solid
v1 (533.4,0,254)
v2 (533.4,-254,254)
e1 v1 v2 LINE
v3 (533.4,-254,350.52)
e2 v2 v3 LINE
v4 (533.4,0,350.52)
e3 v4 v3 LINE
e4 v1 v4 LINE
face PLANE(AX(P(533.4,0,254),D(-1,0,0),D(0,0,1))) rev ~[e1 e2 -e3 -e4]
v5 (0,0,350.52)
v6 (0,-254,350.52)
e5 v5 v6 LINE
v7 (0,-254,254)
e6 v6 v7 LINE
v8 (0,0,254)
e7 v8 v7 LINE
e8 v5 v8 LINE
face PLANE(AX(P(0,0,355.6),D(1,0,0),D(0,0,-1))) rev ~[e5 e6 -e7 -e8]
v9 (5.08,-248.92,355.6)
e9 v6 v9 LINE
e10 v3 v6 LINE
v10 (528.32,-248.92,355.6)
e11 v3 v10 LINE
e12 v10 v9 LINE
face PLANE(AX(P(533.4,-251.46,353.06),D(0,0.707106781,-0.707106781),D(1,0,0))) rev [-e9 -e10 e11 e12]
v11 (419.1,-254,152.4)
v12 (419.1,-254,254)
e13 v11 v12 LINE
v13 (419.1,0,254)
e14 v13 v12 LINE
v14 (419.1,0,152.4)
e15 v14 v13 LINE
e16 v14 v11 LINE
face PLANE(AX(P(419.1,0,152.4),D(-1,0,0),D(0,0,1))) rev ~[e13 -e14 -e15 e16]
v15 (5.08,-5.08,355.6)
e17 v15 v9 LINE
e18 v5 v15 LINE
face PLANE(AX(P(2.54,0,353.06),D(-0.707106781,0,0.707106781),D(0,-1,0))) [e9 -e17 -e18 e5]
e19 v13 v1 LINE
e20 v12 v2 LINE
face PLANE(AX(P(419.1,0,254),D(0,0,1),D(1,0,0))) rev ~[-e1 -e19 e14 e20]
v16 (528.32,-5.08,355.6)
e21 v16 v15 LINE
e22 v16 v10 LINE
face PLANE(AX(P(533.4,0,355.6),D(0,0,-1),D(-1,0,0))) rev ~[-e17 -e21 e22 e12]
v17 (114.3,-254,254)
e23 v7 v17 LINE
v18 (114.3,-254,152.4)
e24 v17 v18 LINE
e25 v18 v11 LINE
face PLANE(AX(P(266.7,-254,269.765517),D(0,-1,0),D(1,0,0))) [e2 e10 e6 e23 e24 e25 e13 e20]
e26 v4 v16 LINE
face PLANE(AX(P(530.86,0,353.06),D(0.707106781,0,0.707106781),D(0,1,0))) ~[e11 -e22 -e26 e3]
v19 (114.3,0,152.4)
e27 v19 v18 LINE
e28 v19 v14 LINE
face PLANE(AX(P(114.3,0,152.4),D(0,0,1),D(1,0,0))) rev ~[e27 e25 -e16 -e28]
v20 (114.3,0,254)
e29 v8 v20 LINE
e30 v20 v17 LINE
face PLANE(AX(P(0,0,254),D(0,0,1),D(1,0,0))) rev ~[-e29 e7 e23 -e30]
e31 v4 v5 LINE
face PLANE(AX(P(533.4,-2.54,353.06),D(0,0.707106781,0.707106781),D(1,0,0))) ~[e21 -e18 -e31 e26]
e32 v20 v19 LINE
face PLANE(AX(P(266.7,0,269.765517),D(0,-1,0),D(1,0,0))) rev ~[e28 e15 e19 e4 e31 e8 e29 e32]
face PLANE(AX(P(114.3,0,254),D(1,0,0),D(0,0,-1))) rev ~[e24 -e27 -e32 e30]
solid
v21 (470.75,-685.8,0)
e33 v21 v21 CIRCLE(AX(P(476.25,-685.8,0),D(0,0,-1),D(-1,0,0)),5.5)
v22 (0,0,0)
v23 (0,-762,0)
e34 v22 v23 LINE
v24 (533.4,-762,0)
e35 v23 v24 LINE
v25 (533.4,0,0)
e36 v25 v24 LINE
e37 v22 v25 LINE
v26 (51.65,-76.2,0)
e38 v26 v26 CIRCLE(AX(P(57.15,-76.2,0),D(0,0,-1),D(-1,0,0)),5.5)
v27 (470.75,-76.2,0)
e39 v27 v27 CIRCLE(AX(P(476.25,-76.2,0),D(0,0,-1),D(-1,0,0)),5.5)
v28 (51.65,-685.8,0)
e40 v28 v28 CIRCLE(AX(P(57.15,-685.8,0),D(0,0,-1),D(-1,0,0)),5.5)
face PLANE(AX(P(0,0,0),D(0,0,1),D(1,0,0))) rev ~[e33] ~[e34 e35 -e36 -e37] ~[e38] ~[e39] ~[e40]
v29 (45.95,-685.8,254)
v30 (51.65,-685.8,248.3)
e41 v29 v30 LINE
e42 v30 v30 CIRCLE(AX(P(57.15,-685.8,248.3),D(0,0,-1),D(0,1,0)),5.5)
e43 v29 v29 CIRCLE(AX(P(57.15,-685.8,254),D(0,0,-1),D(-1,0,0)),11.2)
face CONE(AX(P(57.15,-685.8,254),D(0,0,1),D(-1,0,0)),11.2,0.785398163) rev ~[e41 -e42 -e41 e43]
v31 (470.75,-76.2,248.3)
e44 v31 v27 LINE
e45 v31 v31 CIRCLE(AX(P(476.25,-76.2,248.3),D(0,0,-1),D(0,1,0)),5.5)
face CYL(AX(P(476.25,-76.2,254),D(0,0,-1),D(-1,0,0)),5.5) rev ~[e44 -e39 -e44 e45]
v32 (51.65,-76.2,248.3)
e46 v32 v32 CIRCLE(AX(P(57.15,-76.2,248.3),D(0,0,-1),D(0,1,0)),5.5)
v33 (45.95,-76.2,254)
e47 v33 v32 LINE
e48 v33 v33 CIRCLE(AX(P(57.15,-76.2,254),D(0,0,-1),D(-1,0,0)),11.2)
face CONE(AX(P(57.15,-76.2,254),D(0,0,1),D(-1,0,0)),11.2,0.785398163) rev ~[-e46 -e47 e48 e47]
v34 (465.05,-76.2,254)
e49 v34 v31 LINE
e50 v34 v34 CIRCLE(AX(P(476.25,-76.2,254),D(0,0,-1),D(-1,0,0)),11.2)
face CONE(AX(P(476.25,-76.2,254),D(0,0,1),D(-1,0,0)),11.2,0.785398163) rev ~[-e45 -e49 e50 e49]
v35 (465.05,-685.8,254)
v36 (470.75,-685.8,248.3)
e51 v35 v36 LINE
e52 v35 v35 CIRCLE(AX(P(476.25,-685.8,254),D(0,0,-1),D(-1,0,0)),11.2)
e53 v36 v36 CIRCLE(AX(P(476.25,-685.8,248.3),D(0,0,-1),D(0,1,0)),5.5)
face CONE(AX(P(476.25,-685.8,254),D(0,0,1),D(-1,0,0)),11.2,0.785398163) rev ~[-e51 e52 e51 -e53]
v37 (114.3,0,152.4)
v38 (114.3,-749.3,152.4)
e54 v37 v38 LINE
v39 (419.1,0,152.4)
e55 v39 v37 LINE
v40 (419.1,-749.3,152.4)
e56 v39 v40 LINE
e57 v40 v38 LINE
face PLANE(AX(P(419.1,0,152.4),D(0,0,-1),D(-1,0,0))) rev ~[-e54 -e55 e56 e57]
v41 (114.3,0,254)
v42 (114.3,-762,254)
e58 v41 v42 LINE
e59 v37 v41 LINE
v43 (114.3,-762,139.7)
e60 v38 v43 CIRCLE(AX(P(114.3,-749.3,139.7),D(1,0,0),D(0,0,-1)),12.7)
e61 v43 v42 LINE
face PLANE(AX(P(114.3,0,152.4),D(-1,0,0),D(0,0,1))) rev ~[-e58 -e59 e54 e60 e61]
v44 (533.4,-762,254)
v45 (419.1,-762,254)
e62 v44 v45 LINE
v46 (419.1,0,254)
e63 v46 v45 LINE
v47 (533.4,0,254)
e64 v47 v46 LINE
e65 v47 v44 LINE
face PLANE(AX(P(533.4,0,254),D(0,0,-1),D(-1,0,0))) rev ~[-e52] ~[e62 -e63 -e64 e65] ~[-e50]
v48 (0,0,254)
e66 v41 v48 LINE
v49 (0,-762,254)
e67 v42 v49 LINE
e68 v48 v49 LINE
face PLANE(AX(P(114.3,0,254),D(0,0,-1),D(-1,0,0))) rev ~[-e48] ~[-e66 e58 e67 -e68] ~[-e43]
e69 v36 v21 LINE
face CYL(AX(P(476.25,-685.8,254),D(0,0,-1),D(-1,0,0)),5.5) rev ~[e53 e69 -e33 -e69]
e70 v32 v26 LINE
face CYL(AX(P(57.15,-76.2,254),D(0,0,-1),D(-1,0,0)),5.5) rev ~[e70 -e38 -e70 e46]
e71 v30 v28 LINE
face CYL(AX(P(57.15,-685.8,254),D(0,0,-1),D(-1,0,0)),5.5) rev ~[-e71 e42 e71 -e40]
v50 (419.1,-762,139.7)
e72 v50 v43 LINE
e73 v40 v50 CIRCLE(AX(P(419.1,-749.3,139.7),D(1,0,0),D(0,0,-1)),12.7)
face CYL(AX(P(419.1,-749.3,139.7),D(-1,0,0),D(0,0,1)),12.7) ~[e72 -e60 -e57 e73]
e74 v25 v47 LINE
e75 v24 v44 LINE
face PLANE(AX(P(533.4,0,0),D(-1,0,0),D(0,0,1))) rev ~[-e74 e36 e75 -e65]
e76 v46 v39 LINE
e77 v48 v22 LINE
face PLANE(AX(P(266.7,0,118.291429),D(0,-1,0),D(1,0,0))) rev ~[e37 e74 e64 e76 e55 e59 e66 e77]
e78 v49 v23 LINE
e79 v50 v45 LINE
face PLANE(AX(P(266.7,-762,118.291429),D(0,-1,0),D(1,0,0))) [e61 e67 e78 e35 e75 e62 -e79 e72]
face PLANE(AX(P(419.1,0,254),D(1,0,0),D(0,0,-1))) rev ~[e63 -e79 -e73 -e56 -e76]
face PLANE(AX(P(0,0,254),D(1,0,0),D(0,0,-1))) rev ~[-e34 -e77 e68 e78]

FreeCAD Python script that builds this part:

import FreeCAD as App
import Part
import Sketcher
Q = App.Units.Quantity


def edges_at(feature, points):
    """Names of the edges that pass closest to the given points."""
    edges = feature.Shape.Edges
    near = lambda p: min(range(len(edges)), key=lambda i: edges[i].distToShape(Part.Vertex(*p))[0])
    return sorted({f"Edge{near(p) + 1}" for p in points})


def add_polygon(sketch, points):
    """Adds a closed chain of lines whose ends are joined by coincident constraints."""
    first, n = sketch.GeometryCount, len(points)
    for a, b in zip(points, points[1:] + points[:1]):
        sketch.addGeometry(Part.LineSegment(App.Vector(*a, 0), App.Vector(*b, 0)), False)
    for i in range(n):
        sketch.addConstraint(Sketcher.Constraint("Coincident", first + i, 2, first + (i + 1) % n, 1))

doc = App.newDocument("Part")
params = doc.addObject("Spreadsheet::Sheet", "Params")
for row, (alias, value) in enumerate([
    ("sketch1_width", "21 in"),
    ("sketch1_width2", "12 in"),
    ("sketch1_height", "10 in"),
    ("sketch1_height2", "4 in"),
    ("pad1_length", "30 in"),
    ("hole_diameter", "11 mm"),
    ("hole_csink_diameter", "22.4 mm"),
    ("fillet_radius", "0.5 in"),
    ("sketch3_width", "12 in"),
    ("sketch3_width2", "21 in"),
    ("sketch3_height", "4 in"),
    ("pad2_length", "10 in"),
    ("chamfer_size", "0.2 in"),
], start=1):
    params.set(f"A{row}", alias)
    params.set(f"B{row}", "=" + value)
    params.setAlias(f"B{row}", alias)

body = doc.addObject("PartDesign::Body", "Body")

# Sketch on XZ plane
sketch1 = doc.addObject("Sketcher::SketchObject", "Sketch")
body.addObject(sketch1)
sketch1.AttachmentSupport = (doc.XZ_Plane, [""])
sketch1.MapMode = "FlatFace"
add_polygon(sketch1, [(114, 254), (0, 254), (0, 0), (533, 0), (533, 254), (419, 254), (419, 152), (114, 152)])  # lines 0-7
sketch1.addConstraint([
    Sketcher.Constraint("Horizontal", 0),
    Sketcher.Constraint("Vertical", 1),
    Sketcher.Constraint("Horizontal", 2),
    Sketcher.Constraint("Vertical", 3),
    Sketcher.Constraint("Horizontal", 4),
    Sketcher.Constraint("Vertical", 5),
    Sketcher.Constraint("Horizontal", 6),
    Sketcher.Constraint("Vertical", 7),
    Sketcher.Constraint("Coincident", 1, 2, -1, 1),
    Sketcher.Constraint("Horizontal", 0, 2, 3, 2),
    Sketcher.Constraint("Equal", 0, 4),
    Sketcher.Constraint("DistanceX", 2, 1, 2, 2, Q("21 in")),
    Sketcher.Constraint("DistanceX", 6, 2, 6, 1, Q("12 in")),
    Sketcher.Constraint("DistanceY", 1, 2, 1, 1, Q("10 in")),
    Sketcher.Constraint("DistanceY", 5, 2, 5, 1, Q("4 in")),
])
sketch1.setExpression("Constraints[19]", "Params.sketch1_width")
sketch1.setExpression("Constraints[20]", "Params.sketch1_width2")
sketch1.setExpression("Constraints[21]", "Params.sketch1_height")
sketch1.setExpression("Constraints[22]", "Params.sketch1_height2")
pad1 = doc.addObject("PartDesign::Pad", "Pad")
body.addObject(pad1)
pad1.Profile = sketch1
pad1.setExpression("Length", "Params.pad1_length")

# Sketch on XY plane
sketch2 = doc.addObject("Sketcher::SketchObject", "Sketch001")
body.addObject(sketch2)
sketch2.AttachmentSupport = (doc.XY_Plane, [""])
sketch2.MapMode = "FlatFace"
sketch2.AttachmentOffset = App.Placement(App.Vector(0, 0, 10 * 25.4), App.Rotation())
sketch2.addGeometry([
    Part.Circle(App.Vector(57, -76, 0), App.Vector(0, 0, 1), 6),
    Part.Circle(App.Vector(476, -76, 0), App.Vector(0, 0, 1), 6),
    Part.Circle(App.Vector(476, -686, 0), App.Vector(0, 0, 1), 6),
    Part.Circle(App.Vector(57, -686, 0), App.Vector(0, 0, 1), 6),
], False)
sketch2.addConstraint([
    Sketcher.Constraint("Equal", 0, 1),
    Sketcher.Constraint("Equal", 1, 2),
    Sketcher.Constraint("Equal", 2, 3),
    Sketcher.Constraint("Horizontal", 0, 3, 1, 3),
    Sketcher.Constraint("Horizontal", 2, 3, 3, 3),
    Sketcher.Constraint("Vertical", 1, 3, 2, 3),
    Sketcher.Constraint("Vertical", 0, 3, 3, 3),
    Sketcher.Constraint("DistanceY", 0, 3, -1, 1, Q("3 in")),
    Sketcher.Constraint("DistanceY", 2, 3, -1, 1, Q("27 in")),
    Sketcher.Constraint("DistanceX", 0, 3, 1, 3, Q("16.5 in")),
    Sketcher.Constraint("Diameter", 0, 11.0),
    Sketcher.Constraint("DistanceX", -1, 1, 0, 3, Q("2.25 in")),
])
doc.recompute()
hole = doc.addObject("PartDesign::Hole", "Hole")
body.addObject(hole)
hole.Profile = sketch2
hole.ThreadType = "None"
hole.setExpression("Diameter", "Params.hole_diameter")
hole.DepthType = "ThroughAll"
hole.HoleCutType = "Countersink"
hole.setExpression("HoleCutDiameter", "Params.hole_csink_diameter")
hole.HoleCutCountersinkAngle = 90
doc.recompute()

fillet = doc.addObject("PartDesign::Fillet", "Fillet")
body.addObject(fillet)
fillet.Base = (hole, edges_at(hole, [(266.7, -762, 152.4)]))
fillet.setExpression("Radius", "Params.fillet_radius")
body2 = doc.addObject("PartDesign::Body", "Body001")

# Sketch on XZ plane
sketch3 = doc.addObject("Sketcher::SketchObject", "Sketch002")
body2.addObject(sketch3)
sketch3.AttachmentSupport = (doc.getObject("XZ_Plane001"), [""])
sketch3.MapMode = "FlatFace"
add_polygon(sketch3, [(0, 356), (0, 254), (114, 254), (114, 152), (419, 152), (419, 254), (533, 254), (533, 356)])  # lines 0-7
sketch3.addConstraint([
    Sketcher.Constraint("Vertical", 0),
    Sketcher.Constraint("Horizontal", 1),
    Sketcher.Constraint("Vertical", 2),
    Sketcher.Constraint("Horizontal", 3),
    Sketcher.Constraint("Vertical", 4),
    Sketcher.Constraint("Horizontal", 5),
    Sketcher.Constraint("Vertical", 6),
    Sketcher.Constraint("Horizontal", 7),
    Sketcher.Constraint("PointOnObject", 0, 2, -2),
    Sketcher.Constraint("Horizontal", 1, 2, 4, 2),
    Sketcher.Constraint("Equal", 1, 5),
    Sketcher.Constraint("Equal", 0, 2),
    Sketcher.Constraint("DistanceX", 3, 1, 3, 2, Q("12 in")),
    Sketcher.Constraint("DistanceX", 7, 2, 7, 1, Q("21 in")),
    Sketcher.Constraint("DistanceY", 0, 2, 0, 1, Q("4 in")),
    Sketcher.Constraint("DistanceY", -1, 1, 0, 2, Q("10 in")),
])
sketch3.setExpression("Constraints[20]", "Params.sketch3_width")
sketch3.setExpression("Constraints[21]", "Params.sketch3_width2")
sketch3.setExpression("Constraints[22]", "Params.sketch3_height")
pad2 = doc.addObject("PartDesign::Pad", "Pad001")
body2.addObject(pad2)
pad2.Profile = sketch3
pad2.setExpression("Length", "Params.pad2_length")
doc.recompute()

chamfer = doc.addObject("PartDesign::Chamfer", "Chamfer")
body2.addObject(chamfer)
chamfer.Base = (pad2, edges_at(pad2, [
    (533.4, -127, 355.6),
    (0, -127, 355.6),
    (266.7, 0, 355.6),
    (266.7, -254, 355.6),
]))
chamfer.setExpression("Size", "Params.chamfer_size")

doc.recompute()
